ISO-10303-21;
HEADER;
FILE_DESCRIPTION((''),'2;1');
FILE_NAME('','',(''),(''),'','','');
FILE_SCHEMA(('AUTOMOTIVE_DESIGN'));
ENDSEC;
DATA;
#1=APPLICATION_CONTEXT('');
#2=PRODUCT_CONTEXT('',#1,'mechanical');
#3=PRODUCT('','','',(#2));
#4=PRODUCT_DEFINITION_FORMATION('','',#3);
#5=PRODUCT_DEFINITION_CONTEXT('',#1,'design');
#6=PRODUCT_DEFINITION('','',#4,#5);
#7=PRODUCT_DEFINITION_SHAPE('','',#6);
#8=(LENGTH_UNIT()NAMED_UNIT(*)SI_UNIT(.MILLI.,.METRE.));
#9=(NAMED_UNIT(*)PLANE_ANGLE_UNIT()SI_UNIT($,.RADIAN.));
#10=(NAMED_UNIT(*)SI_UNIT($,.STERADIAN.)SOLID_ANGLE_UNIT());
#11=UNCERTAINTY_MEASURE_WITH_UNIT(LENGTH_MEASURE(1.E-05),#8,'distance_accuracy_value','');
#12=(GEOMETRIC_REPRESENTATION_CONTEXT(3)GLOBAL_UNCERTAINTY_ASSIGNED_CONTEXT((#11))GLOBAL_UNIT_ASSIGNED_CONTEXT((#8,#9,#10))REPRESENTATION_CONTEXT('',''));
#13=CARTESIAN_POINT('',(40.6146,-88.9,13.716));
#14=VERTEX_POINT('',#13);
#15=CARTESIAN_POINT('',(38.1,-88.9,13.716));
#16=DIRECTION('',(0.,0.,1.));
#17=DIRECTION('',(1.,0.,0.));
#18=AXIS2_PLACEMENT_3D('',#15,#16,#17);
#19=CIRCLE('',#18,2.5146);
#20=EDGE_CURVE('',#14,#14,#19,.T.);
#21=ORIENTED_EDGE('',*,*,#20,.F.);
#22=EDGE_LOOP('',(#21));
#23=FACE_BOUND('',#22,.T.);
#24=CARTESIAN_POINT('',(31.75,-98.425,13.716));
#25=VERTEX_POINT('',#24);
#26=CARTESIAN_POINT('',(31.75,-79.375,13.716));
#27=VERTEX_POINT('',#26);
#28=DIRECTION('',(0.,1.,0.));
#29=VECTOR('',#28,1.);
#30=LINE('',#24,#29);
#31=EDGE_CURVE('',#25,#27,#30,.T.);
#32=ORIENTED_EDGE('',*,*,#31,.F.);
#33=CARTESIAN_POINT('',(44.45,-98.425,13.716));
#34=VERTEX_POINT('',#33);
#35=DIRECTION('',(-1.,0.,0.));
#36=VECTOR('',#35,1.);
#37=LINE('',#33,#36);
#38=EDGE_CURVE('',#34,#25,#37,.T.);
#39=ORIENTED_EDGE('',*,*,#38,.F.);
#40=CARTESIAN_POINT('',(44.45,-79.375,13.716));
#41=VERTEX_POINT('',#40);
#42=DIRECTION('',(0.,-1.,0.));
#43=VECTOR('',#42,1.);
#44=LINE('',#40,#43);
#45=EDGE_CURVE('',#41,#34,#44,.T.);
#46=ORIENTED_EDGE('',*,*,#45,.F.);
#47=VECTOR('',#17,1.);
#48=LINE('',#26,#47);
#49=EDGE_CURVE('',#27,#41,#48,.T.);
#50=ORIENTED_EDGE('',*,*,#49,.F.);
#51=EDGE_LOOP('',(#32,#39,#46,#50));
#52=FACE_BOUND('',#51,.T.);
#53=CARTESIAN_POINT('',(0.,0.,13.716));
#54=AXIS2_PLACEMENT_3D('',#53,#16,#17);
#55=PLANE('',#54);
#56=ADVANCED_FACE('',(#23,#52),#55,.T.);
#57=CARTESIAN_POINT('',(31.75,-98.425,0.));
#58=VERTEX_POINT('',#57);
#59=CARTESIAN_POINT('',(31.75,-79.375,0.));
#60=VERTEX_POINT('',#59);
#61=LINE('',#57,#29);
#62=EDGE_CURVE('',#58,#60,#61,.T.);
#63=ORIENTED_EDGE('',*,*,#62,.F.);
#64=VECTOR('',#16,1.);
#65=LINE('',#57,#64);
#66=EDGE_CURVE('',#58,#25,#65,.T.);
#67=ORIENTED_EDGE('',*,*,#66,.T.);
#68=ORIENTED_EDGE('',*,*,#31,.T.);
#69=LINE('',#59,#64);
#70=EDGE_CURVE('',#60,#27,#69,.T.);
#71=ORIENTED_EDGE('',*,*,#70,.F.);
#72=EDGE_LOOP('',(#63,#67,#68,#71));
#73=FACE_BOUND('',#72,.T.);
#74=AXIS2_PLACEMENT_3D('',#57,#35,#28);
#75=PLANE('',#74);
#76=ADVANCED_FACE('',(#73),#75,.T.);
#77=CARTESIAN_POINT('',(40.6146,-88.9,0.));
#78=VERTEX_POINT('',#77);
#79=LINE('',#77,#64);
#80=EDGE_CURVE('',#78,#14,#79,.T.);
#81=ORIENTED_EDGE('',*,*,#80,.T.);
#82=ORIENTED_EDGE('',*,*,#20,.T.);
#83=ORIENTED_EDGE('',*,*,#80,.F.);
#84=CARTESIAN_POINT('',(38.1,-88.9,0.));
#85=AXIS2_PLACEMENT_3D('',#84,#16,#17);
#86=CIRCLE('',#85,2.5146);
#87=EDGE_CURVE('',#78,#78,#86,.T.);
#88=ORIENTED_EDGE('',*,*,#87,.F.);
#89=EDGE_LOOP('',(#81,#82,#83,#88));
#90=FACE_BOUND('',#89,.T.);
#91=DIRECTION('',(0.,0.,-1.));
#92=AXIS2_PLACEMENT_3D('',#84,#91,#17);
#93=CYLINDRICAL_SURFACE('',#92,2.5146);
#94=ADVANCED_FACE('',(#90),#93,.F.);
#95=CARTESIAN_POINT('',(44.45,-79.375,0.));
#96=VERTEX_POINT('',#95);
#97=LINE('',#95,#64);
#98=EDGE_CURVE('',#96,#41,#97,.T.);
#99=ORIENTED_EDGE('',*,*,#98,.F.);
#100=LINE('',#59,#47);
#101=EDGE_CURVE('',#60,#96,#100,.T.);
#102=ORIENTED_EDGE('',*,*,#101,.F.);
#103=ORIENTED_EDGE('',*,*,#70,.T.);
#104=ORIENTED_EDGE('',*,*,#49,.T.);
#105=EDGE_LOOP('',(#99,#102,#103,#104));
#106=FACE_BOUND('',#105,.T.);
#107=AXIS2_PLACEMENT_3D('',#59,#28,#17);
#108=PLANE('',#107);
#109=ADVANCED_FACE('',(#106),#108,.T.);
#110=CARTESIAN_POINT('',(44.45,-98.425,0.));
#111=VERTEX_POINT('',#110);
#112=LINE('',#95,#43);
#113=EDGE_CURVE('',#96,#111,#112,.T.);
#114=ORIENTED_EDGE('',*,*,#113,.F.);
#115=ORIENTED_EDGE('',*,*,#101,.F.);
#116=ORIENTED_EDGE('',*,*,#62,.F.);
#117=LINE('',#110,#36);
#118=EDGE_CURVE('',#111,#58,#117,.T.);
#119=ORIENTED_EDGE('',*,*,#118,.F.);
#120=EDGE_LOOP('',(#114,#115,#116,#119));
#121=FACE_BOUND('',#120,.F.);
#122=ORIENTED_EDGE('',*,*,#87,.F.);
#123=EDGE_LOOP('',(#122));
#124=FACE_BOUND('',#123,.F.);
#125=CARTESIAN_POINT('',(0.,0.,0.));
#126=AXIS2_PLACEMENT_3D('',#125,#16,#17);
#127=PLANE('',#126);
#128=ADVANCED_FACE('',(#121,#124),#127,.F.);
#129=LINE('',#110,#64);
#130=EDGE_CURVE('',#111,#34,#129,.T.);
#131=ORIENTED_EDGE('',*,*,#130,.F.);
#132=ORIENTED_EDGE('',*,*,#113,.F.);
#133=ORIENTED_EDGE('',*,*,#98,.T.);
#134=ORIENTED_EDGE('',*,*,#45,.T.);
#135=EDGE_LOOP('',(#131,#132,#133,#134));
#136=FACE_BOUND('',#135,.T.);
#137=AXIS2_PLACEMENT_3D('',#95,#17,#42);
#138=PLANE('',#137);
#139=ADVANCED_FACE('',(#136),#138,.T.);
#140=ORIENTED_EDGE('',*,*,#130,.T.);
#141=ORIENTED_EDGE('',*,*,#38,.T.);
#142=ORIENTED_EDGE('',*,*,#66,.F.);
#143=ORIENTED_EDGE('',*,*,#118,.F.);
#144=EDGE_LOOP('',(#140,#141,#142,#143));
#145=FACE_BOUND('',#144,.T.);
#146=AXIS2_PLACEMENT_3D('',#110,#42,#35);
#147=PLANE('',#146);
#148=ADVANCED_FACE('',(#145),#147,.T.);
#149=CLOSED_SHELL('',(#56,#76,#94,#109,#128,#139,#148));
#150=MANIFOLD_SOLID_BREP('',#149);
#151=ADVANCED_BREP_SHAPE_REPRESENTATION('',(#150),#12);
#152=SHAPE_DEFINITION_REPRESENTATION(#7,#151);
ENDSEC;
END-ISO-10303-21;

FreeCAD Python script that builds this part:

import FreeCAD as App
import Part
import Sketcher
Q = App.Units.Quantity


def add_polygon(sketch, points):
    """Adds a closed chain of lines whose ends are joined by coincident constraints."""
    first, n = sketch.GeometryCount, len(points)
    for a, b in zip(points, points[1:] + points[:1]):
        sketch.addGeometry(Part.LineSegment(App.Vector(*a, 0), App.Vector(*b, 0)), False)
    for i in range(n):
        sketch.addConstraint(Sketcher.Constraint("Coincident", first + i, 2, first + (i + 1) % n, 1))

doc = App.newDocument("Part")
body = doc.addObject("PartDesign::Body", "Body")

# Sketch on XY plane
sketch1 = body.newObject("Sketcher::SketchObject", "Sketch")
sketch1.AttachmentSupport = (doc.getObject("XY_Plane"), [""])
sketch1.MapMode = "FlatFace"
add_polygon(sketch1, [(31.8, -98.4), (44.5, -98.4), (44.5, -79.4), (31.8, -79.4)])  # lines 0-3
sketch1.addGeometry(Part.Circle(App.Vector(38.1, -88.9, 0), App.Vector(0, 0, 1), 2.5), False)  # 4
sketch1.addConstraint([
    Sketcher.Constraint("Horizontal", 0),
    Sketcher.Constraint("Vertical", 1),
    Sketcher.Constraint("Horizontal", 2),
    Sketcher.Constraint("Vertical", 3),
    Sketcher.Constraint("DistanceX", 0, 1, 0, 2, Q("0.5 in")),
    Sketcher.Constraint("DistanceY", 1, 1, 1, 2, Q("0.75 in")),
    Sketcher.Constraint("DistanceX", 4, 3, 0, 2, Q("0.25 in")),
    Sketcher.Constraint("Diameter", 4, Q("0.198 in")),
    Sketcher.Constraint("DistanceY", 0, 2, 4, 3, Q("0.375 in")),
    Sketcher.Constraint("DistanceX", -1, 1, 4, 3, Q("1.5 in")),
    Sketcher.Constraint("DistanceY", 4, 3, -1, 1, Q("3.5 in")),
])
pad1 = body.newObject("PartDesign::Pad", "Pad")
pad1.Profile = sketch1
pad1.Length = Q("0.54 in")

doc.recompute()
